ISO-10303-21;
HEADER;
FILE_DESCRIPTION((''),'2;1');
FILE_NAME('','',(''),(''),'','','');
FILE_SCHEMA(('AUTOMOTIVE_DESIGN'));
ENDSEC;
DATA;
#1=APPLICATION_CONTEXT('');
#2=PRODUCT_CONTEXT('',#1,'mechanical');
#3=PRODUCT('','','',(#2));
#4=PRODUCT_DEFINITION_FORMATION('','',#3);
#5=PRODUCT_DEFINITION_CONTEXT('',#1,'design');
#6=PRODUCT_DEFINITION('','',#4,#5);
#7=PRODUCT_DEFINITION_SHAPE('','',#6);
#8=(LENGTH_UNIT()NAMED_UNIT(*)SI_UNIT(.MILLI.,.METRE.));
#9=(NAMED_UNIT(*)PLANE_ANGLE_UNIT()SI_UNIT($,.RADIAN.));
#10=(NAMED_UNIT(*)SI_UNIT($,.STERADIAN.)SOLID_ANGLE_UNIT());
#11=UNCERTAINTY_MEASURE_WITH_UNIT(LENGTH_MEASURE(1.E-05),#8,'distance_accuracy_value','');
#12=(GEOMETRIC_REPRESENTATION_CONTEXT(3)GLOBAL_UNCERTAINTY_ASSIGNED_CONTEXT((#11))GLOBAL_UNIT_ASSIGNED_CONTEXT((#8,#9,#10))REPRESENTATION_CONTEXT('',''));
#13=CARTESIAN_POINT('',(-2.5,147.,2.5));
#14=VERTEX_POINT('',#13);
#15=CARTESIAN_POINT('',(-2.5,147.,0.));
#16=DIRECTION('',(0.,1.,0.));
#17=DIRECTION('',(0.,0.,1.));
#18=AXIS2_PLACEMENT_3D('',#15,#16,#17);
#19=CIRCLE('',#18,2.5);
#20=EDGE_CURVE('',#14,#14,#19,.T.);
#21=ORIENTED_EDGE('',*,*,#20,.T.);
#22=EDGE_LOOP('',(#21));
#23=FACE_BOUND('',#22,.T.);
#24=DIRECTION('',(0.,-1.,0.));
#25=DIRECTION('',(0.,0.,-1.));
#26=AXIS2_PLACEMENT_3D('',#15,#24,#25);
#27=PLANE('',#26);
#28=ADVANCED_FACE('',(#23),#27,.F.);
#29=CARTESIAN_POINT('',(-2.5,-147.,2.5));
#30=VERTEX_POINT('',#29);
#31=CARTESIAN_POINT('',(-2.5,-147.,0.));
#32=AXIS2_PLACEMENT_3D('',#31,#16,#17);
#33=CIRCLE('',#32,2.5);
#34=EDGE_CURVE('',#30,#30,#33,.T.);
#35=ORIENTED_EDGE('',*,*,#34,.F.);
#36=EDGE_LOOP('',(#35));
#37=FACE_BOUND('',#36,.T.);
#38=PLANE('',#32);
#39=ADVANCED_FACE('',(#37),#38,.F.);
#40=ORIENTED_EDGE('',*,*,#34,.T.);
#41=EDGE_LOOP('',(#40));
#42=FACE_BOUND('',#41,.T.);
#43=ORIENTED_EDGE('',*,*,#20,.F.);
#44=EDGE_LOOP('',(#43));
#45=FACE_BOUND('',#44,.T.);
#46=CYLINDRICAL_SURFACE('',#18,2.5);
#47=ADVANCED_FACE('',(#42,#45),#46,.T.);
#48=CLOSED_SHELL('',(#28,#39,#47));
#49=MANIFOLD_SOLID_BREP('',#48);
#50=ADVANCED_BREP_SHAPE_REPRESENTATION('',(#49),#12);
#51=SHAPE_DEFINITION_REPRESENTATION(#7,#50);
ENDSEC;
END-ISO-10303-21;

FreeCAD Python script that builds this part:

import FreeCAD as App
import Part
import Sketcher
from FreeCAD import Vector


def add_polygon(sketch, points):
    """Adds a closed chain of lines whose ends are joined by coincident constraints."""
    first, n = sketch.GeometryCount, len(points)
    for a, b in zip(points, points[1:] + points[:1]):
        sketch.addGeometry(Part.LineSegment(App.Vector(*a, 0), App.Vector(*b, 0)), False)
    for i in range(n):
        sketch.addConstraint(Sketcher.Constraint("Coincident", first + i, 2, first + (i + 1) % n, 1))

doc = App.newDocument("Part")
body = doc.addObject("PartDesign::Body", "Body")

# Sketch on XY plane
sketch1 = doc.addObject("Sketcher::SketchObject", "Sketch")
body.addObject(sketch1)
sketch1.AttachmentSupport = (doc.XY_Plane, [""])
sketch1.MapMode = "FlatFace"
add_polygon(sketch1, [(-2.5, 147), (-2.5, -147), (0, -147), (0, 147)])  # lines 0-3
sketch1.addGeometry(Part.LineSegment(Vector(-2.5, 147, 0), Vector(-2.5, -147, 0)), True)  # axis
sketch1.addConstraint([
    Sketcher.Constraint("Vertical", 0),
    Sketcher.Constraint("Horizontal", 1),
    Sketcher.Constraint("Vertical", 2),
    Sketcher.Constraint("Horizontal", 3),
    Sketcher.Constraint("Vertical", 4),
    Sketcher.Constraint("Coincident", 4, 1, 3, 2),
    Sketcher.Constraint("Symmetric", 1, 2, 2, 2, -1, 1),
    Sketcher.Constraint("Horizontal", 1, 2, 4, 2),
    Sketcher.Constraint("DistanceY", 0, 2, 0, 1, 294.0),
    Sketcher.Constraint("DistanceX", 1, 1, 1, 2, 2.5),
])
revolution = doc.addObject("PartDesign::Revolution", "Revolution")
body.addObject(revolution)
revolution.Profile = sketch1
revolution.ReferenceAxis = (sketch1, ["Axis0"])
revolution.Angle = 360

doc.recompute()
